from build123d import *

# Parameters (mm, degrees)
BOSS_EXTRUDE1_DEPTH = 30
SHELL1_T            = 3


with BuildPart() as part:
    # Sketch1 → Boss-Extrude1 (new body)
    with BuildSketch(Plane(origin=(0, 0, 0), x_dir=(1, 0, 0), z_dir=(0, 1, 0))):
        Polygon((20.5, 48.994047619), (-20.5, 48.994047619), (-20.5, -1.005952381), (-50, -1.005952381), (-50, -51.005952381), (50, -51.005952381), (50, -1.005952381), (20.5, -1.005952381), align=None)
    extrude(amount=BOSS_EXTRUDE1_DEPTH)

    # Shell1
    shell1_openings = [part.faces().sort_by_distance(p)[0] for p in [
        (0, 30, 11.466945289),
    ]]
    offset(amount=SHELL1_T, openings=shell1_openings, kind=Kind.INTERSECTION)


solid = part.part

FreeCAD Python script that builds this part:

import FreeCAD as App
import Part
import Sketcher
Q = App.Units.Quantity


def faces_at(feature, points):
    """Names of the faces that lie closest to the given points."""
    faces = feature.Shape.Faces
    near = lambda p: min(range(len(faces)), key=lambda i: faces[i].distToShape(Part.Vertex(*p))[0])
    return sorted({f"Face{near(p) + 1}" for p in points})


def add_polygon(sketch, points):
    """Adds a closed chain of lines whose ends are joined by coincident constraints."""
    first, n = sketch.GeometryCount, len(points)
    for a, b in zip(points, points[1:] + points[:1]):
        sketch.addGeometry(Part.LineSegment(App.Vector(*a, 0), App.Vector(*b, 0)), False)
    for i in range(n):
        sketch.addConstraint(Sketcher.Constraint("Coincident", first + i, 2, first + (i + 1) % n, 1))

doc = App.newDocument("Part")
params = doc.addObject("Spreadsheet::Sheet", "Params")
for row, (alias, value) in enumerate([
    ("sketch1_width", "41 mm"),
    ("sketch1_width2", "100 mm"),
    ("sketch1_height", "50 mm"),
    ("pad1_length", "30 mm"),
    ("thickness_wall", "3 mm"),
], start=1):
    params.set(f"A{row}", alias)
    params.set(f"B{row}", "=" + value)
    params.setAlias(f"B{row}", alias)

body = doc.addObject("PartDesign::Body", "Body")

# Sketch on XZ plane
sketch1 = doc.addObject("Sketcher::SketchObject", "Sketch")
body.addObject(sketch1)
sketch1.AttachmentSupport = (doc.XZ_Plane, [""])
sketch1.MapMode = "FlatFace"
add_polygon(sketch1, [(20, -49), (-20, -49), (-20, 1), (-50, 1), (-50, 51), (50, 51), (50, 1), (20, 1)])  # lines 0-7
sketch1.addConstraint([
    Sketcher.Constraint("Horizontal", 0),
    Sketcher.Constraint("Vertical", 1),
    Sketcher.Constraint("Horizontal", 2),
    Sketcher.Constraint("Vertical", 3),
    Sketcher.Constraint("Horizontal", 4),
    Sketcher.Constraint("Vertical", 5),
    Sketcher.Constraint("Horizontal", 6),
    Sketcher.Constraint("Vertical", 7),
    Sketcher.Constraint("Symmetric", 2, 2, 5, 2, -2),
    Sketcher.Constraint("Equal", 2, 6),
    Sketcher.Constraint("Equal", 1, 3),
    Sketcher.Constraint("DistanceX", 0, 2, 0, 1, Q("41 mm")),
    Sketcher.Constraint("DistanceX", 4, 1, 4, 2, Q("100 mm")),
    Sketcher.Constraint("DistanceY", 1, 1, 1, 2, Q("50 mm")),
    Sketcher.Constraint("DistanceY", 0, 2, -1, 1, Q("48.994048 mm")),
])
sketch1.setExpression("Constraints[19]", "Params.sketch1_width")
sketch1.setExpression("Constraints[20]", "Params.sketch1_width2")
sketch1.setExpression("Constraints[21]", "Params.sketch1_height")
pad1 = doc.addObject("PartDesign::Pad", "Pad")
body.addObject(pad1)
pad1.Profile = sketch1
pad1.setExpression("Length", "Params.pad1_length")
pad1.Reversed = True
doc.recompute()

thickness = doc.addObject("PartDesign::Thickness", "Thickness")
body.addObject(thickness)
thickness.Base = (pad1, faces_at(pad1, [(0, 30, 1.006)]))
thickness.setExpression("Value", "Params.thickness_wall")
thickness.Reversed = False
thickness.Join = "Intersection"

doc.recompute()
